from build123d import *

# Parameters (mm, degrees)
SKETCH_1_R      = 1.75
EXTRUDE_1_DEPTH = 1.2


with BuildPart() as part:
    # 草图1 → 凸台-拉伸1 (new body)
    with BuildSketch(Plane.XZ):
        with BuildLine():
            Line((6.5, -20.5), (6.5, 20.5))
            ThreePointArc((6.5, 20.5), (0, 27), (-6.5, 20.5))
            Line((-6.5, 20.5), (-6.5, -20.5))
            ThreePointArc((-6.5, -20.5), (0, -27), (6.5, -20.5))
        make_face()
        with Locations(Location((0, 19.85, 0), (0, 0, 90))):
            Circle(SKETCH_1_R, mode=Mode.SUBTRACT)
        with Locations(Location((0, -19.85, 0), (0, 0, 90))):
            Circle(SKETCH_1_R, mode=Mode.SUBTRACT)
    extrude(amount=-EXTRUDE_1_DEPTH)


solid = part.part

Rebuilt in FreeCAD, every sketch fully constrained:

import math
import FreeCAD as App
import Part
import Sketcher

V = App.Vector
Q = App.Units.Quantity

doc = App.newDocument("Part")
params = doc.addObject("Spreadsheet::Sheet", "Params")
for row, (alias, value) in enumerate([
    ("sketch1_diameter", "3.5 mm"),
    ("sketch1_radius", "6.5 mm"),
    ("sketch1_height", "41 mm"),
    ("pad1_length", "1.2 mm"),
], start=1):
    params.set(f"A{row}", alias)
    params.set(f"B{row}", "=" + value)
    params.setAlias(f"B{row}", alias)

body = doc.addObject("PartDesign::Body", "Body")

# Sketch on XZ plane
sketch1 = body.newObject("Sketcher::SketchObject", "Sketch")
sketch1.AttachmentSupport = (doc.getObject("XZ_Plane"), [""])
sketch1.MapMode = "FlatFace"
sketch1.addGeometry([
    Part.LineSegment(V(6.5, -20.5, 0), V(6.5, 20.5, 0)),  # 0
    Part.ArcOfCircle(Part.Circle(V(0, 20.5, 0), V(0, 0, 1), 6.5), math.radians(0), math.radians(180)),  # 1
    Part.LineSegment(V(-6.5, 20.5, 0), V(-6.5, -20.5, 0)),  # 2
    Part.ArcOfCircle(Part.Circle(V(0, -20.5, 0), V(0, 0, 1), 6.5), math.radians(180), math.radians(360)),  # 3
    Part.Circle(V(0, -19.9, 0), V(0, 0, 1), 1.8),  # 4
    Part.Circle(V(0, 19.9, 0), V(0, 0, 1), 1.8),  # 5
], False)
sketch1.addConstraint([
    Sketcher.Constraint("Tangent", 0, 2, 1, 1),
    Sketcher.Constraint("Tangent", 1, 2, 2, 1),
    Sketcher.Constraint("Tangent", 2, 2, 3, 1),
    Sketcher.Constraint("Tangent", 3, 2, 0, 1),
    Sketcher.Constraint("Vertical", 0),
    Sketcher.Constraint("Vertical", 2),
    Sketcher.Constraint("Equal", 4, 5),
    Sketcher.Constraint("Symmetric", 1, 3, 3, 3, -1, 1),
    Sketcher.Constraint("Symmetric", 4, 3, 5, 3, -1, 1),
    Sketcher.Constraint("PointOnObject", 4, 3, -2),
    Sketcher.Constraint("Diameter", 4, Q("3.5 mm")),
    Sketcher.Constraint("Radius", 1, Q("6.5 mm")),
    Sketcher.Constraint("DistanceY", 0, 1, 0, 2, Q("41 mm")),
    Sketcher.Constraint("DistanceY", 4, 3, 5, 3, Q("39.7 mm")),
])
sketch1.setExpression("Constraints[10]", "Params.sketch1_diameter")
sketch1.setExpression("Constraints[11]", "Params.sketch1_radius")
sketch1.setExpression("Constraints[12]", "Params.sketch1_height")
pad1 = body.newObject("PartDesign::Pad", "Pad")
pad1.Profile = sketch1
pad1.setExpression("Length", "Params.pad1_length")
pad1.Reversed = True

doc.recompute()
